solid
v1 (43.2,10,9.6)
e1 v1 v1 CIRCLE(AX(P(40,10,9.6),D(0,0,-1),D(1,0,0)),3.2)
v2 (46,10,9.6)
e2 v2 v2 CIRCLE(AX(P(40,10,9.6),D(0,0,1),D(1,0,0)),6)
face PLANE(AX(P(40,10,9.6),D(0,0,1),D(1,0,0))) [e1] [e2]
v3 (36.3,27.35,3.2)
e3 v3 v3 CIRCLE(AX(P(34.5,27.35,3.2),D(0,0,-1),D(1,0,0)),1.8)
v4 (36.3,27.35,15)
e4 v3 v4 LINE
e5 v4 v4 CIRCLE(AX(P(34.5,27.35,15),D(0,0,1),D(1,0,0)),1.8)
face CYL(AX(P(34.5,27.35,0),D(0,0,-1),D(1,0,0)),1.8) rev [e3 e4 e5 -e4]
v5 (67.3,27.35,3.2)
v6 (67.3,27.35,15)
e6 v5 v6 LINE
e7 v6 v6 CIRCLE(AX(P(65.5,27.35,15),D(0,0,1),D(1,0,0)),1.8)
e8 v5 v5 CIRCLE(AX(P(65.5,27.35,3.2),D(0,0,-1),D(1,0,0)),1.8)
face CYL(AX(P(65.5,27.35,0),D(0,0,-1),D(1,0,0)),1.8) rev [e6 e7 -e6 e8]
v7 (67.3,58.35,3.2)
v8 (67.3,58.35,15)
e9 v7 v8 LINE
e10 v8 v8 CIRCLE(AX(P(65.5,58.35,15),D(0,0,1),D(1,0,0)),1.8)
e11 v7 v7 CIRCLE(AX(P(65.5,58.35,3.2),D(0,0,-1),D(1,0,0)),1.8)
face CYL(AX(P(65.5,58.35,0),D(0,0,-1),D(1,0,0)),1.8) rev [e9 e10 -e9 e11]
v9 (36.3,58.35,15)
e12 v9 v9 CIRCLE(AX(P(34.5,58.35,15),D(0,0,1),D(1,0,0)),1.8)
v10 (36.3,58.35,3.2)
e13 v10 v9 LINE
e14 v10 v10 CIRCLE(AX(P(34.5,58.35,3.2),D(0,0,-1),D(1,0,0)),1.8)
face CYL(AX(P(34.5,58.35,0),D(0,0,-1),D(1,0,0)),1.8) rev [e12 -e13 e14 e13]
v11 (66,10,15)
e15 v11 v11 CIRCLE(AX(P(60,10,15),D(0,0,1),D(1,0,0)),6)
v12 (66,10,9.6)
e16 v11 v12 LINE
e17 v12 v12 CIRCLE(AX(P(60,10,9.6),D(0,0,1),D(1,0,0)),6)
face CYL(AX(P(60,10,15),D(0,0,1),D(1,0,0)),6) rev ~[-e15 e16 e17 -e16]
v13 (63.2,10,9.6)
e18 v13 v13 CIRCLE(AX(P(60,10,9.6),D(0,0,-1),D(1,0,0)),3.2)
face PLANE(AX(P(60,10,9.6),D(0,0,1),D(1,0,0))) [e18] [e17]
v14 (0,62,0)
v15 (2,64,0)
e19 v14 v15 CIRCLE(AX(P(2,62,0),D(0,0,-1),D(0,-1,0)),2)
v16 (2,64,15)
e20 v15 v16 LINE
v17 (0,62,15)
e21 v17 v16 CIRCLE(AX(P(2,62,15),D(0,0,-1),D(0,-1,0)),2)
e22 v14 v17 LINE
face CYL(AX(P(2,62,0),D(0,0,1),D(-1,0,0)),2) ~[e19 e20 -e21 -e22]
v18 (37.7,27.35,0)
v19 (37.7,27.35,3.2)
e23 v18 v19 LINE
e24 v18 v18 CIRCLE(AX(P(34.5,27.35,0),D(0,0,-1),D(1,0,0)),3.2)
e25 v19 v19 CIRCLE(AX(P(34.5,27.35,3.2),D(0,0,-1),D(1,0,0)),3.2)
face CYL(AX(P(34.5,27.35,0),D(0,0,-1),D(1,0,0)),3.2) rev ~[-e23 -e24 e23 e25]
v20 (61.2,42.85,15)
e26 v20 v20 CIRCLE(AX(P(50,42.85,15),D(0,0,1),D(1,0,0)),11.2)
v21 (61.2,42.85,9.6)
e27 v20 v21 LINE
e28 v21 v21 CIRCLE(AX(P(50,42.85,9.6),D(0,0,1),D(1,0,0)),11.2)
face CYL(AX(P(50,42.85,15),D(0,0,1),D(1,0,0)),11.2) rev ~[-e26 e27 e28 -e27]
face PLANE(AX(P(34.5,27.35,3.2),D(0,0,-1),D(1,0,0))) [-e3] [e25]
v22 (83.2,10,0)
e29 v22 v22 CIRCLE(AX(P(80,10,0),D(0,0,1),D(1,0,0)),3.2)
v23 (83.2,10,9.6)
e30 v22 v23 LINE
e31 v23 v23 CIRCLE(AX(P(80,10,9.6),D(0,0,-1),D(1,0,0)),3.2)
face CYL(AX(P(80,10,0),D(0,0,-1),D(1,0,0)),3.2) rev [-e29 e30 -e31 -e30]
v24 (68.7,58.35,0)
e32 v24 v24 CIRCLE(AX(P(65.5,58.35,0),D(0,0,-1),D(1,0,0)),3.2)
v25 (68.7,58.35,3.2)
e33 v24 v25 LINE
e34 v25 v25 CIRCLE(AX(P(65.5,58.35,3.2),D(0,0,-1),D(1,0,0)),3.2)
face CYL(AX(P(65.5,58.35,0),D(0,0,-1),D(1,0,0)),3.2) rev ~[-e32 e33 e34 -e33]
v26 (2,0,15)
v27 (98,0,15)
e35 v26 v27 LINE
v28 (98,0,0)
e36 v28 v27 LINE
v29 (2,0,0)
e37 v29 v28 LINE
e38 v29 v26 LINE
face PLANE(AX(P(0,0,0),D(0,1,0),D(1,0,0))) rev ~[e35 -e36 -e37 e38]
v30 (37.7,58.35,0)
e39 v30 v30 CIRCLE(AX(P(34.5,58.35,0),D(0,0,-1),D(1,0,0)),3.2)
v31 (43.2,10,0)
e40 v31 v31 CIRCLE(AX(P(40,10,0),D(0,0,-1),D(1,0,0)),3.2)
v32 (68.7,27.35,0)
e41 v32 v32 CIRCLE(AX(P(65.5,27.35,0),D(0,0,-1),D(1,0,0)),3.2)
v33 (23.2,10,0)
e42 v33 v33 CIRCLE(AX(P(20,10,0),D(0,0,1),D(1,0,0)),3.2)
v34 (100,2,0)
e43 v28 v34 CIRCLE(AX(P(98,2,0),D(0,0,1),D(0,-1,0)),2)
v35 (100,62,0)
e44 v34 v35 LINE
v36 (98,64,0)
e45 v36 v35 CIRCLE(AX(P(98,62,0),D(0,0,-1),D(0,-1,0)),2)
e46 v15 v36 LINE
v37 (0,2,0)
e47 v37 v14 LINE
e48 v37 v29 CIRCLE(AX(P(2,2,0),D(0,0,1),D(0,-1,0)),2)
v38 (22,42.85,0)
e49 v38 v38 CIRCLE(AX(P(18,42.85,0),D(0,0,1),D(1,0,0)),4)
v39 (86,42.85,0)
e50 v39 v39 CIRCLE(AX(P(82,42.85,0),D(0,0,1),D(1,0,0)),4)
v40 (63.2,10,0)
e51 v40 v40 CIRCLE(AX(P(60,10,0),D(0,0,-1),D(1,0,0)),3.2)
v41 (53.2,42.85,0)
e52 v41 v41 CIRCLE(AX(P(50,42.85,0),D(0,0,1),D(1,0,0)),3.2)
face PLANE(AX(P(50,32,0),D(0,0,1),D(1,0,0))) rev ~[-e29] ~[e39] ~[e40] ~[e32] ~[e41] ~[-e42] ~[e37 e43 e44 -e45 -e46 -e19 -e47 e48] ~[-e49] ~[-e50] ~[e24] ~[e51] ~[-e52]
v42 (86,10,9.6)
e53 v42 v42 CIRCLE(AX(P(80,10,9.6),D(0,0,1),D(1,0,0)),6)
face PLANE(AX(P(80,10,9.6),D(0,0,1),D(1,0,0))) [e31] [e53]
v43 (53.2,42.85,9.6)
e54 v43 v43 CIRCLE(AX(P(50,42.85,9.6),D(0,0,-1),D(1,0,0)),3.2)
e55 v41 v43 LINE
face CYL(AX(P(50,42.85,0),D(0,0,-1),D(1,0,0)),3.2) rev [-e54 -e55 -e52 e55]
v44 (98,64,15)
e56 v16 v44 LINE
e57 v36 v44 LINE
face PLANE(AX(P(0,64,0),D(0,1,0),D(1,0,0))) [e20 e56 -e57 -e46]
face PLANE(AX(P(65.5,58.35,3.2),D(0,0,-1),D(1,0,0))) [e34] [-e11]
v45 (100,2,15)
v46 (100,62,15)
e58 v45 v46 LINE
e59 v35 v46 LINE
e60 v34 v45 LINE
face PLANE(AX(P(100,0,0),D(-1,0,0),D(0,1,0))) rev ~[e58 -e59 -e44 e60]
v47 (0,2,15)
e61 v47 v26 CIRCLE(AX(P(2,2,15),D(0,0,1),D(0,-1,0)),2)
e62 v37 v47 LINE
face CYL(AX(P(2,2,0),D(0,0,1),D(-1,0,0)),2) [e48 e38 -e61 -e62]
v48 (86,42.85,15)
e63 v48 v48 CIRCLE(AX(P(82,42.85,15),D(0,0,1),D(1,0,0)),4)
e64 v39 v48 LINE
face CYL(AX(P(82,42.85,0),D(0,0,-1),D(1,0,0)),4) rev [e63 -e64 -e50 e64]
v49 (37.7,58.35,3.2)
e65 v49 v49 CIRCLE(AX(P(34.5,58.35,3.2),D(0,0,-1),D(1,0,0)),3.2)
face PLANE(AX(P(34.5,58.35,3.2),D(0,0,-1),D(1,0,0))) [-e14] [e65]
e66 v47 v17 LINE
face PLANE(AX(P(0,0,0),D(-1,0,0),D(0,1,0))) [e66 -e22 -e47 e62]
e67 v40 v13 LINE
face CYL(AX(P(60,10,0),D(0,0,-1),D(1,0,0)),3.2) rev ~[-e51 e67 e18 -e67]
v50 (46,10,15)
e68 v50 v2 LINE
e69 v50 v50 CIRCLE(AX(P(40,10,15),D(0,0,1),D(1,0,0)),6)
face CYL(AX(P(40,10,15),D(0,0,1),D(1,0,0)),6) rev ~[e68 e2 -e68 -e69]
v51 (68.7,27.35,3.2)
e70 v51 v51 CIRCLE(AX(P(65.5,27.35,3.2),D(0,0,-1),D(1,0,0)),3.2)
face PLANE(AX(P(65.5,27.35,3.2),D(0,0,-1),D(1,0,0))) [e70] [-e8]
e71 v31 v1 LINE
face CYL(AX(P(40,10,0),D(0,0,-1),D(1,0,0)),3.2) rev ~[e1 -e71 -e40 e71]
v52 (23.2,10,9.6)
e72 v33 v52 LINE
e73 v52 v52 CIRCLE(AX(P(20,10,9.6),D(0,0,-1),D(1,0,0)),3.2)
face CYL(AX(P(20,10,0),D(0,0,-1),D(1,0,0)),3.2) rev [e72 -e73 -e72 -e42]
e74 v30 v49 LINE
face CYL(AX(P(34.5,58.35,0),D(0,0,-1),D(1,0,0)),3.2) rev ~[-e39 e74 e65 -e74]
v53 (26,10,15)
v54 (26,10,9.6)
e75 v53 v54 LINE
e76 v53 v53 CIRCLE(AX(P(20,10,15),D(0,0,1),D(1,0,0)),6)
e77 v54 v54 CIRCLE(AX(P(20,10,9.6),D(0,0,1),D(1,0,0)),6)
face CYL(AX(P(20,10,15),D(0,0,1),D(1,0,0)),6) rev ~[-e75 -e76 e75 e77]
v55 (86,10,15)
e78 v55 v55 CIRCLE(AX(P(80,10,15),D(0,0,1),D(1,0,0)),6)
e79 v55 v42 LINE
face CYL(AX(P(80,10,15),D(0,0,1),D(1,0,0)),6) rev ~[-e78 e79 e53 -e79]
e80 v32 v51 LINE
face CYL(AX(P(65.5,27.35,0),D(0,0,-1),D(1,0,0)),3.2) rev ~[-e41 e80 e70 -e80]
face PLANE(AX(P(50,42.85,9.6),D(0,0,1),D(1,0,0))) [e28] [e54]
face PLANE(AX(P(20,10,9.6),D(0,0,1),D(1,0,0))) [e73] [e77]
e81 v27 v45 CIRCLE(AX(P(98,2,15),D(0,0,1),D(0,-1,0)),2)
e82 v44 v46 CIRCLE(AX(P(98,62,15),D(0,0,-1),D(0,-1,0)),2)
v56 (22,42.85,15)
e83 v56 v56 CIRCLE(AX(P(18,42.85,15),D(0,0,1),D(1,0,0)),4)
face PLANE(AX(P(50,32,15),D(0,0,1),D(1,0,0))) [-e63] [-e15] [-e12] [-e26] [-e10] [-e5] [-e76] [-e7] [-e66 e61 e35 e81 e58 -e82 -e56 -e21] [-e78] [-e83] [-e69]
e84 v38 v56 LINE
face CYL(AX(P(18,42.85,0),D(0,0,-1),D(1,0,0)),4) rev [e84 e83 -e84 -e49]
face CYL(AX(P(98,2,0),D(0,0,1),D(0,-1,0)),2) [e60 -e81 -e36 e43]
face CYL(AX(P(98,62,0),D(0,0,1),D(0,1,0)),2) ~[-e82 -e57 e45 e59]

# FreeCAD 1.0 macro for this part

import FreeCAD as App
import Part
import Sketcher
Q = App.Units.Quantity


def edges_at(feature, points):
    """Names of the edges that pass closest to the given points."""
    edges = feature.Shape.Edges
    near = lambda p: min(range(len(edges)), key=lambda i: edges[i].distToShape(Part.Vertex(*p))[0])
    return sorted({f"Edge{near(p) + 1}" for p in points})


def add_polygon(sketch, points):
    """Adds a closed chain of lines whose ends are joined by coincident constraints."""
    first, n = sketch.GeometryCount, len(points)
    for a, b in zip(points, points[1:] + points[:1]):
        sketch.addGeometry(Part.LineSegment(App.Vector(*a, 0), App.Vector(*b, 0)), False)
    for i in range(n):
        sketch.addConstraint(Sketcher.Constraint("Coincident", first + i, 2, first + (i + 1) % n, 1))

doc = App.newDocument("Part")
body = doc.addObject("PartDesign::Body", "Body")

# Sketch on XY plane
sketch1 = doc.addObject("Sketcher::SketchObject", "Sketch")
body.addObject(sketch1)
sketch1.AttachmentSupport = (doc.XY_Plane, [""])
sketch1.MapMode = "FlatFace"
add_polygon(sketch1, [(0, 64), (0, 0), (100, 0), (100, 64)])  # lines 0-3
sketch1.addGeometry(Part.Circle(App.Vector(20, 10, 0), App.Vector(0, 0, 1), 3.2), False)  # 4
sketch1.addGeometry(Part.Circle(App.Vector(34.5, 27.35, 0), App.Vector(0, 0, 1), 1.8), False)  # 5
sketch1.addGeometry(Part.Circle(App.Vector(80, 10, 0), App.Vector(0, 0, 1), 3.2), False)  # 6
sketch1.addGeometry(Part.Circle(App.Vector(65.5, 27.35, 0), App.Vector(0, 0, 1), 1.8), False)  # 7
sketch1.addGeometry(Part.Circle(App.Vector(18, 42.85, 0), App.Vector(0, 0, 1), 4), False)  # 8
sketch1.addGeometry(Part.Circle(App.Vector(34.5, 58.35, 0), App.Vector(0, 0, 1), 1.8), False)  # 9
sketch1.addGeometry(Part.Circle(App.Vector(50, 42.85, 0), App.Vector(0, 0, 1), 3.2), False)  # 10
sketch1.addGeometry(Part.Circle(App.Vector(82, 42.85, 0), App.Vector(0, 0, 1), 4), False)  # 11
sketch1.addGeometry(Part.Circle(App.Vector(65.5, 58.35, 0), App.Vector(0, 0, 1), 1.8), False)  # 12
sketch1.addConstraint(Sketcher.Constraint("Vertical", 0))
sketch1.addConstraint(Sketcher.Constraint("Horizontal", 1))
sketch1.addConstraint(Sketcher.Constraint("Vertical", 2))
sketch1.addConstraint(Sketcher.Constraint("Horizontal", 3))
sketch1.addConstraint(Sketcher.Constraint("Coincident", 0, 2, -1, 1))
sketch1.addConstraint(Sketcher.Constraint("Equal", 4, 6))
sketch1.addConstraint(Sketcher.Constraint("Equal", 5, 7))
sketch1.addConstraint(Sketcher.Constraint("Equal", 7, 9))
sketch1.addConstraint(Sketcher.Constraint("Equal", 6, 10))
sketch1.addConstraint(Sketcher.Constraint("Equal", 8, 11))
sketch1.addConstraint(Sketcher.Constraint("Equal", 9, 12))
sketch1.addConstraint(Sketcher.Constraint("Horizontal", 4, 3, 6, 3))
sketch1.addConstraint(Sketcher.Constraint("Horizontal", 5, 3, 7, 3))
sketch1.addConstraint(Sketcher.Constraint("Horizontal", 8, 3, 10, 3))
sketch1.addConstraint(Sketcher.Constraint("Horizontal", 10, 3, 11, 3))
sketch1.addConstraint(Sketcher.Constraint("Horizontal", 9, 3, 12, 3))
sketch1.addConstraint(Sketcher.Constraint("Vertical", 5, 3, 9, 3))
sketch1.addConstraint(Sketcher.Constraint("Vertical", 7, 3, 12, 3))
sketch1.addConstraint(Sketcher.Constraint("Diameter", 8, Q("8 mm")))
sketch1.addConstraint(Sketcher.Constraint("Diameter", 4, Q("6.4 mm")))
sketch1.addConstraint(Sketcher.Constraint("Diameter", 5, Q("3.6 mm")))
sketch1.addConstraint(Sketcher.Constraint("DistanceX", 1, 1, 1, 2, Q("100 mm")))
sketch1.addConstraint(Sketcher.Constraint("DistanceY", 0, 2, 0, 1, Q("64 mm")))
sketch1.addConstraint(Sketcher.Constraint("DistanceX", -1, 1, 4, 3, Q("20 mm")))
sketch1.addConstraint(Sketcher.Constraint("DistanceY", -1, 1, 4, 3, Q("10 mm")))
sketch1.addConstraint(Sketcher.Constraint("DistanceX", -1, 1, 6, 3, Q("80 mm")))
sketch1.addConstraint(Sketcher.Constraint("DistanceX", -1, 1, 8, 3, Q("18 mm")))
sketch1.addConstraint(Sketcher.Constraint("DistanceX", -1, 1, 10, 3, Q("50 mm")))
sketch1.addConstraint(Sketcher.Constraint("DistanceX", -1, 1, 11, 3, Q("82 mm")))
sketch1.addConstraint(Sketcher.Constraint("DistanceX", 5, 3, 7, 3, Q("31 mm")))
sketch1.addConstraint(Sketcher.Constraint("DistanceY", 5, 3, 9, 3, Q("31 mm")))
sketch1.addConstraint(Sketcher.Constraint("DistanceX", -1, 1, 5, 3, Q("34.5 mm")))
sketch1.addConstraint(Sketcher.Constraint("DistanceY", 5, 3, 8, 3, Q("15.5 mm")))
sketch1.addConstraint(Sketcher.Constraint("DistanceY", -1, 1, 5, 3, Q("27.35 mm")))
pad1 = doc.addObject("PartDesign::Pad", "Pad")
body.addObject(pad1)
pad1.Profile = sketch1
pad1.Length = 15

# Sketch on XY plane
sketch2 = doc.addObject("Sketcher::SketchObject", "Sketch001")
body.addObject(sketch2)
sketch2.AttachmentSupport = (doc.XY_Plane, [""])
sketch2.MapMode = "FlatFace"
sketch2.AttachmentOffset = App.Placement(App.Vector(0, 0, 15), App.Rotation())
sketch2.addGeometry(Part.Circle(App.Vector(50, 42.85, 0), App.Vector(0, 0, 1), 11.2), False)
sketch2.addGeometry(Part.Circle(App.Vector(20, 10, 0), App.Vector(0, 0, 1), 6), False)
sketch2.addGeometry(Part.Circle(App.Vector(80, 10, 0), App.Vector(0, 0, 1), 6), False)
sketch2.addConstraint(Sketcher.Constraint("Equal", 1, 2))
sketch2.addConstraint(Sketcher.Constraint("Horizontal", 1, 3, 2, 3))
sketch2.addConstraint(Sketcher.Constraint("Diameter", 1, Q("12 mm")))
sketch2.addConstraint(Sketcher.Constraint("Diameter", 0, Q("22.4 mm")))
sketch2.addConstraint(Sketcher.Constraint("DistanceX", -1, 1, 0, 3, Q("50 mm")))
sketch2.addConstraint(Sketcher.Constraint("DistanceX", -1, 1, 1, 3, Q("20 mm")))
sketch2.addConstraint(Sketcher.Constraint("DistanceY", -1, 1, 1, 3, Q("10 mm")))
sketch2.addConstraint(Sketcher.Constraint("DistanceX", -1, 1, 2, 3, Q("80 mm")))
sketch2.addConstraint(Sketcher.Constraint("DistanceY", -1, 1, 0, 3, Q("42.85 mm")))
pocket1 = doc.addObject("PartDesign::Pocket", "Pocket")
body.addObject(pocket1)
pocket1.Profile = sketch2
pocket1.Length = 5.4

# Sketch on XY plane
sketch3 = doc.addObject("Sketcher::SketchObject", "Sketch002")
body.addObject(sketch3)
sketch3.AttachmentSupport = (doc.XY_Plane, [""])
sketch3.MapMode = "FlatFace"
sketch3.addGeometry(Part.Circle(App.Vector(34.5, 27.35, 0), App.Vector(0, 0, 1), 3.2), False)
sketch3.addGeometry(Part.Circle(App.Vector(65.5, 27.35, 0), App.Vector(0, 0, 1), 3.2), False)
sketch3.addGeometry(Part.Circle(App.Vector(34.5, 58.35, 0), App.Vector(0, 0, 1), 3.2), False)
sketch3.addGeometry(Part.Circle(App.Vector(65.5, 58.35, 0), App.Vector(0, 0, 1), 3.2), False)
sketch3.addConstraint(Sketcher.Constraint("Equal", 0, 1))
sketch3.addConstraint(Sketcher.Constraint("Equal", 1, 2))
sketch3.addConstraint(Sketcher.Constraint("Equal", 2, 3))
sketch3.addConstraint(Sketcher.Constraint("Horizontal", 0, 3, 1, 3))
sketch3.addConstraint(Sketcher.Constraint("Horizontal", 2, 3, 3, 3))
sketch3.addConstraint(Sketcher.Constraint("Vertical", 0, 3, 2, 3))
sketch3.addConstraint(Sketcher.Constraint("Vertical", 1, 3, 3, 3))
sketch3.addConstraint(Sketcher.Constraint("Diameter", 0, Q("6.4 mm")))
sketch3.addConstraint(Sketcher.Constraint("DistanceX", 0, 3, 1, 3, Q("31 mm")))
sketch3.addConstraint(Sketcher.Constraint("DistanceY", 0, 3, 2, 3, Q("31 mm")))
sketch3.addConstraint(Sketcher.Constraint("DistanceX", -1, 1, 0, 3, Q("34.5 mm")))
sketch3.addConstraint(Sketcher.Constraint("DistanceY", -1, 1, 0, 3, Q("27.35 mm")))
pocket2 = doc.addObject("PartDesign::Pocket", "Pocket001")
body.addObject(pocket2)
pocket2.Profile = sketch3
pocket2.Length = 3.2
pocket2.Reversed = True

# Sketch on XY plane
sketch4 = doc.addObject("Sketcher::SketchObject", "Sketch003")
body.addObject(sketch4)
sketch4.AttachmentSupport = (doc.XY_Plane, [""])
sketch4.MapMode = "FlatFace"
sketch4.AttachmentOffset = App.Placement(App.Vector(0, 0, 15), App.Rotation())
sketch4.addGeometry(Part.Circle(App.Vector(40, 10, 0), App.Vector(0, 0, 1), 6), False)
sketch4.addGeometry(Part.Circle(App.Vector(60, 10, 0), App.Vector(0, 0, 1), 6), False)
sketch4.addConstraint(Sketcher.Constraint("Equal", 0, 1))
sketch4.addConstraint(Sketcher.Constraint("Horizontal", 0, 3, 1, 3))
sketch4.addConstraint(Sketcher.Constraint("Diameter", 0, Q("12 mm")))
sketch4.addConstraint(Sketcher.Constraint("DistanceX", -1, 1, 0, 3, Q("40 mm")))
sketch4.addConstraint(Sketcher.Constraint("DistanceY", -1, 1, 0, 3, Q("10 mm")))
sketch4.addConstraint(Sketcher.Constraint("DistanceX", -1, 1, 1, 3, Q("60 mm")))
pocket3 = doc.addObject("PartDesign::Pocket", "Pocket002")
body.addObject(pocket3)
pocket3.Profile = sketch4
pocket3.Length = 5.4

# Sketch on XY plane
sketch5 = doc.addObject("Sketcher::SketchObject", "Sketch004")
body.addObject(sketch5)
sketch5.AttachmentSupport = (doc.XY_Plane, [""])
sketch5.MapMode = "FlatFace"
sketch5.addGeometry(Part.Circle(App.Vector(40, 10, 0), App.Vector(0, 0, 1), 3.2), False)
sketch5.addGeometry(Part.Circle(App.Vector(60, 10, 0), App.Vector(0, 0, 1), 3.2), False)
sketch5.addConstraint(Sketcher.Constraint("Equal", 0, 1))
sketch5.addConstraint(Sketcher.Constraint("Horizontal", 0, 3, 1, 3))
sketch5.addConstraint(Sketcher.Constraint("Diameter", 0, Q("6.4 mm")))
sketch5.addConstraint(Sketcher.Constraint("DistanceX", -1, 1, 0, 3, Q("40 mm")))
sketch5.addConstraint(Sketcher.Constraint("DistanceY", -1, 1, 0, 3, Q("10 mm")))
sketch5.addConstraint(Sketcher.Constraint("DistanceX", -1, 1, 1, 3, Q("60 mm")))
pocket4 = doc.addObject("PartDesign::Pocket", "Pocket003")
body.addObject(pocket4)
pocket4.Profile = sketch5
pocket4.Length = 15
pocket4.Reversed = True
doc.recompute()

fillet = doc.addObject("PartDesign::Fillet", "Fillet")
body.addObject(fillet)
fillet.Base = (pocket4, edges_at(pocket4, [
    (0, 64, 7.5),
    (100, 64, 7.5),
    (100, 0, 7.5),
    (0, 0, 7.5),
]))
fillet.Radius = 2

doc.recompute()
